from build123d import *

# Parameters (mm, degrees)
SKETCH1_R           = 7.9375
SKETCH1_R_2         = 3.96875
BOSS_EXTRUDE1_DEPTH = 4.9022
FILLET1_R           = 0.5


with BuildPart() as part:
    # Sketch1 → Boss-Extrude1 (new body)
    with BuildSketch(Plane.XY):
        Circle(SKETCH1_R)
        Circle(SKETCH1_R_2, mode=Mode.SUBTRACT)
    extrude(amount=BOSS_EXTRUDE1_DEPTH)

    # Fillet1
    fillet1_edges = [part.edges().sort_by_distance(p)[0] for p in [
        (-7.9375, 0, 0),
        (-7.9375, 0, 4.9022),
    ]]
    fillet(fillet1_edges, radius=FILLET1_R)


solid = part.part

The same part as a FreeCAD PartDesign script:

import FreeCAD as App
import Part
import Sketcher
Q = App.Units.Quantity


def edges_at(feature, points):
    """Names of the edges that pass closest to the given points."""
    edges = feature.Shape.Edges
    near = lambda p: min(range(len(edges)), key=lambda i: edges[i].distToShape(Part.Vertex(*p))[0])
    return sorted({f"Edge{near(p) + 1}" for p in points})

doc = App.newDocument("Part")
body = doc.addObject("PartDesign::Body", "Body")

sketch1 = body.newObject("Sketcher::SketchObject", "Sketch")
sketch1.AttachmentSupport = (doc.getObject("XY_Plane"), [""])
sketch1.MapMode = "FlatFace"
sketch1.addGeometry(Part.Circle(App.Vector(0, 0, 0), App.Vector(0, 0, 1), 7.9375), False)
sketch1.addGeometry(Part.Circle(App.Vector(0, 0, 0), App.Vector(0, 0, 1), 3.96875), False)
sketch1.addConstraint(Sketcher.Constraint("Coincident", 0, 3, -1, 1))
sketch1.addConstraint(Sketcher.Constraint("Coincident", 1, 3, -1, 1))
sketch1.addConstraint(Sketcher.Constraint("Diameter", 0, Q("0.625 in")))
sketch1.addConstraint(Sketcher.Constraint("Diameter", 1, Q("0.3125 in")))
pad1 = body.newObject("PartDesign::Pad", "Pad")
pad1.Profile = sketch1
pad1.Length = Q("0.193 in")
doc.recompute()

fillet = body.newObject("PartDesign::Fillet", "Fillet")
fillet.Base = (pad1, edges_at(pad1, [(-7.938, 0, 0), (-7.938, 0, 4.902)]))
fillet.Radius = 0.5

doc.recompute()
